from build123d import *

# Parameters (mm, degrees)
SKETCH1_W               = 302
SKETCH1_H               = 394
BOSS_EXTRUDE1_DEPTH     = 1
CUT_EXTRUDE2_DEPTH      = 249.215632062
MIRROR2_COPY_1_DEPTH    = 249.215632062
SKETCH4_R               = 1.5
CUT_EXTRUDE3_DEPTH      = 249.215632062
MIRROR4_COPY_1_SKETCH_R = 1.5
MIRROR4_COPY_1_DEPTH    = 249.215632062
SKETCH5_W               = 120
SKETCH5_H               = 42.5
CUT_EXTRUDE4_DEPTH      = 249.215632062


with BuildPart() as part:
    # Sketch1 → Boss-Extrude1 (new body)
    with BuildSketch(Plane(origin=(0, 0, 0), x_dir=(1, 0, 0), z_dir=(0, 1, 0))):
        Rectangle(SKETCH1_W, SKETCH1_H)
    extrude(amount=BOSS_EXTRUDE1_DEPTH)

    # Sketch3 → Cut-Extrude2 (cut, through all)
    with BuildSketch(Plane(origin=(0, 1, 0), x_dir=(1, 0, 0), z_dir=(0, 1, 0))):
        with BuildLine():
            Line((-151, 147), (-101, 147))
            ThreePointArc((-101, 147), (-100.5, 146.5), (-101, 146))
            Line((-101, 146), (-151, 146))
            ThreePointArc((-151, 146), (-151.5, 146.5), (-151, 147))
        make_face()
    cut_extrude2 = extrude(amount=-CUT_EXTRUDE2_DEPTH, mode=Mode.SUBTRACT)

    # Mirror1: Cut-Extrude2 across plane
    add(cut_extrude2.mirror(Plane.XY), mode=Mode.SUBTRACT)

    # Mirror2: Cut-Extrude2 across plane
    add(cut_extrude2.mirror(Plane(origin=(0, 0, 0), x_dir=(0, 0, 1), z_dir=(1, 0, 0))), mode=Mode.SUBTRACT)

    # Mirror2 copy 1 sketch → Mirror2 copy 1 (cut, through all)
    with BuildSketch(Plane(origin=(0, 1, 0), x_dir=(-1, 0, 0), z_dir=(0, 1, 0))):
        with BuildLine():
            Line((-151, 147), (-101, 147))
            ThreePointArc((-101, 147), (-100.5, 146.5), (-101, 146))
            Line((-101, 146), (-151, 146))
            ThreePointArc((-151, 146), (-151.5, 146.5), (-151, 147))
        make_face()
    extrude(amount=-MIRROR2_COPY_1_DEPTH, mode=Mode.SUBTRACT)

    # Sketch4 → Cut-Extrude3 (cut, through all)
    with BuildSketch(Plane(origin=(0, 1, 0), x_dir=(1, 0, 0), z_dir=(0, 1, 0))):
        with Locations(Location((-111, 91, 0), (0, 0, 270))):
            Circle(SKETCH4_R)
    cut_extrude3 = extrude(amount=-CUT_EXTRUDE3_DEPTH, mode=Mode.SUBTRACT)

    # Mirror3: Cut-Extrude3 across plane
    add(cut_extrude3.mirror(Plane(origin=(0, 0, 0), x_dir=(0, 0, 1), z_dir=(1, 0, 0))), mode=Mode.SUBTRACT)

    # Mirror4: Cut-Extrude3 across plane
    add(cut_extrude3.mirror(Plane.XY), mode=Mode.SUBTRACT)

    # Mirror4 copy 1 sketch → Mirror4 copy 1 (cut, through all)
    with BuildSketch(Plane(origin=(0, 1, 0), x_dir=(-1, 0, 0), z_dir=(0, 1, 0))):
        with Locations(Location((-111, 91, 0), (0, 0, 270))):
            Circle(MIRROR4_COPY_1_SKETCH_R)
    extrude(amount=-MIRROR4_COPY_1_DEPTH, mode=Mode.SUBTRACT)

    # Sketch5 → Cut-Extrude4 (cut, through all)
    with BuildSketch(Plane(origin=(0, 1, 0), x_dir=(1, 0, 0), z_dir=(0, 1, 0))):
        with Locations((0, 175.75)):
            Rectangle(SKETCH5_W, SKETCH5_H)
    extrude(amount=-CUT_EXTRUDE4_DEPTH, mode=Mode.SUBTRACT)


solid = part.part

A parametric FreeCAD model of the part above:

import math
import FreeCAD as App
import Part
import Sketcher

V = App.Vector
Q = App.Units.Quantity

doc = App.newDocument("Part")
params = doc.addObject("Spreadsheet::Sheet", "Params")
for row, (alias, value) in enumerate([
    ("sketch1_width", "302 mm"),
    ("sketch1_height", "394 mm"),
    ("pad1_length", "1 mm"),
    ("sketch2_radius", "0.5 mm"),
    ("sketch2_width", "50 mm"),
    ("sketch3_radius", "0.5 mm"),
    ("sketch3_width", "50 mm"),
    ("sketch4_diameter", "3 mm"),
    ("sketch5_diameter", "3 mm"),
    ("sketch6_width", "120 mm"),
    ("sketch6_height", "42.5 mm"),
], start=1):
    params.set(f"A{row}", alias)
    params.set(f"B{row}", "=" + value)
    params.setAlias(f"B{row}", alias)

body = doc.addObject("PartDesign::Body", "Body")

# Sketch on XZ plane
sketch1 = body.newObject("Sketcher::SketchObject", "Sketch")
sketch1.AttachmentSupport = (doc.getObject("XZ_Plane"), [""])
sketch1.MapMode = "FlatFace"
sketch1.addGeometry(Part.LineSegment(V(-151, -197, 0), V(-151, 197, 0)), False)
sketch1.addGeometry(Part.LineSegment(V(-151, 197, 0), V(151, 197, 0)), False)
sketch1.addGeometry(Part.LineSegment(V(151, 197, 0), V(151, -197, 0)), False)
sketch1.addGeometry(Part.LineSegment(V(151, -197, 0), V(-151, -197, 0)), False)
sketch1.addConstraint(Sketcher.Constraint("Coincident", 0, 2, 1, 1))
sketch1.addConstraint(Sketcher.Constraint("Coincident", 1, 2, 2, 1))
sketch1.addConstraint(Sketcher.Constraint("Coincident", 2, 2, 3, 1))
sketch1.addConstraint(Sketcher.Constraint("Coincident", 3, 2, 0, 1))
sketch1.addConstraint(Sketcher.Constraint("Vertical", 0))
sketch1.addConstraint(Sketcher.Constraint("Horizontal", 1))
sketch1.addConstraint(Sketcher.Constraint("Vertical", 2))
sketch1.addConstraint(Sketcher.Constraint("Horizontal", 3))
sketch1.addConstraint(Sketcher.Constraint("Symmetric", 0, 2, 2, 2, -1, 1))
sketch1.addConstraint(Sketcher.Constraint("DistanceX", 1, 1, 1, 2, Q("302 mm")))
sketch1.addConstraint(Sketcher.Constraint("DistanceY", 0, 1, 0, 2, Q("394 mm")))
sketch1.setExpression("Constraints[9]", "Params.sketch1_width")
sketch1.setExpression("Constraints[10]", "Params.sketch1_height")
pad1 = body.newObject("PartDesign::Pad", "Pad")
pad1.Profile = sketch1
pad1.setExpression("Length", "Params.pad1_length")
pad1.Reversed = True

# Sketch on XZ plane
sketch2 = body.newObject("Sketcher::SketchObject", "Sketch001")
sketch2.AttachmentSupport = (doc.getObject("XZ_Plane"), [""])
sketch2.MapMode = "FlatFace"
sketch2.AttachmentOffset = App.Placement(V(0, 0, -1), App.Rotation())
sketch2.addGeometry(Part.LineSegment(V(-101, -147, 0), V(-151, -147, 0)), False)
sketch2.addGeometry(Part.ArcOfCircle(Part.Circle(V(-151, -146.5, 0), V(0, 0, 1), 0.5), math.radians(90), math.radians(270)), False)
sketch2.addGeometry(Part.LineSegment(V(-151, -146, 0), V(-101, -146, 0)), False)
sketch2.addGeometry(Part.ArcOfCircle(Part.Circle(V(-101, -146.5, 0), V(0, 0, 1), 0.5), math.radians(-90), math.radians(90)), False)
sketch2.addConstraint(Sketcher.Constraint("Tangent", 0, 2, 1, 2))
sketch2.addConstraint(Sketcher.Constraint("Tangent", 1, 1, 2, 1))
sketch2.addConstraint(Sketcher.Constraint("Tangent", 2, 2, 3, 2))
sketch2.addConstraint(Sketcher.Constraint("Tangent", 3, 1, 0, 1))
sketch2.addConstraint(Sketcher.Constraint("Horizontal", 0))
sketch2.addConstraint(Sketcher.Constraint("Horizontal", 2))
sketch2.addConstraint(Sketcher.Constraint("Radius", 1, Q("0.5 mm")))
sketch2.addConstraint(Sketcher.Constraint("DistanceX", 0, 2, 0, 1, Q("50 mm")))
sketch2.addConstraint(Sketcher.Constraint("DistanceX", 1, 3, -1, 1, Q("151 mm")))
sketch2.addConstraint(Sketcher.Constraint("DistanceY", 0, 2, -1, 1, Q("147 mm")))
sketch2.setExpression("Constraints[6]", "Params.sketch2_radius")
sketch2.setExpression("Constraints[7]", "Params.sketch2_width")
pocket1 = body.newObject("PartDesign::Pocket", "Pocket")
pocket1.Profile = sketch2
pocket1.Type = "ThroughAll"
pocket1.Reversed = True
doc.recompute()

mirrored = body.newObject("PartDesign::Mirrored", "Mirrored")
mirrored.Originals = [pocket1]
mirrored.MirrorPlane = (doc.getObject("XY_Plane"), [""])
body.Tip = mirrored
doc.recompute()

mirrored2 = body.newObject("PartDesign::Mirrored", "Mirrored001")
mirrored2.Originals = [pocket1]
mirrored2.MirrorPlane = (doc.getObject("YZ_Plane"), [""])
body.Tip = mirrored2

# Sketch on XZ plane
sketch3 = body.newObject("Sketcher::SketchObject", "Sketch002")
sketch3.AttachmentSupport = (doc.getObject("XZ_Plane"), [""])
sketch3.MapMode = "FlatFace"
sketch3.AttachmentOffset = App.Placement(V(0, 0, -1), App.Rotation())
sketch3.addGeometry(Part.LineSegment(V(101, 147, 0), V(151, 147, 0)), False)
sketch3.addGeometry(Part.ArcOfCircle(Part.Circle(V(151, 146.5, 0), V(0, 0, 1), 0.5), math.radians(-90), math.radians(90)), False)
sketch3.addGeometry(Part.LineSegment(V(151, 146, 0), V(101, 146, 0)), False)
sketch3.addGeometry(Part.ArcOfCircle(Part.Circle(V(101, 146.5, 0), V(0, 0, 1), 0.5), math.radians(90), math.radians(270)), False)
sketch3.addConstraint(Sketcher.Constraint("Tangent", 0, 2, 1, 2))
sketch3.addConstraint(Sketcher.Constraint("Tangent", 1, 1, 2, 1))
sketch3.addConstraint(Sketcher.Constraint("Tangent", 2, 2, 3, 2))
sketch3.addConstraint(Sketcher.Constraint("Tangent", 3, 1, 0, 1))
sketch3.addConstraint(Sketcher.Constraint("Horizontal", 0))
sketch3.addConstraint(Sketcher.Constraint("Horizontal", 2))
sketch3.addConstraint(Sketcher.Constraint("Radius", 1, Q("0.5 mm")))
sketch3.addConstraint(Sketcher.Constraint("DistanceX", 0, 1, 0, 2, Q("50 mm")))
sketch3.addConstraint(Sketcher.Constraint("DistanceX", -1, 1, 1, 3, Q("151 mm")))
sketch3.addConstraint(Sketcher.Constraint("DistanceY", -1, 1, 0, 2, Q("147 mm")))
sketch3.setExpression("Constraints[6]", "Params.sketch3_radius")
sketch3.setExpression("Constraints[7]", "Params.sketch3_width")
pocket2 = body.newObject("PartDesign::Pocket", "Pocket001")
pocket2.Profile = sketch3
pocket2.Type = "ThroughAll"
pocket2.Reversed = True

# Sketch on XZ plane
sketch4 = body.newObject("Sketcher::SketchObject", "Sketch003")
sketch4.AttachmentSupport = (doc.getObject("XZ_Plane"), [""])
sketch4.MapMode = "FlatFace"
sketch4.AttachmentOffset = App.Placement(V(0, 0, -1), App.Rotation())
sketch4.addGeometry(Part.Circle(V(-111, -91, 0), V(0, 0, 1), 1.5), False)
sketch4.addConstraint(Sketcher.Constraint("Diameter", 0, Q("3 mm")))
sketch4.addConstraint(Sketcher.Constraint("DistanceX", 0, 3, -1, 1, Q("111 mm")))
sketch4.addConstraint(Sketcher.Constraint("DistanceY", 0, 3, -1, 1, Q("91 mm")))
sketch4.setExpression("Constraints[0]", "Params.sketch4_diameter")
pocket3 = body.newObject("PartDesign::Pocket", "Pocket002")
pocket3.Profile = sketch4
pocket3.Type = "ThroughAll"
pocket3.Reversed = True
doc.recompute()

mirrored3 = body.newObject("PartDesign::Mirrored", "Mirrored002")
mirrored3.Originals = [pocket3]
mirrored3.MirrorPlane = (doc.getObject("YZ_Plane"), [""])
body.Tip = mirrored3
doc.recompute()

mirrored4 = body.newObject("PartDesign::Mirrored", "Mirrored003")
mirrored4.Originals = [pocket3]
mirrored4.MirrorPlane = (doc.getObject("XY_Plane"), [""])
body.Tip = mirrored4

# Sketch on XZ plane
sketch5 = body.newObject("Sketcher::SketchObject", "Sketch004")
sketch5.AttachmentSupport = (doc.getObject("XZ_Plane"), [""])
sketch5.MapMode = "FlatFace"
sketch5.AttachmentOffset = App.Placement(V(0, 0, -1), App.Rotation())
sketch5.addGeometry(Part.Circle(V(111, 91, 0), V(0, 0, 1), 1.5), False)
sketch5.addConstraint(Sketcher.Constraint("Diameter", 0, Q("3 mm")))
sketch5.addConstraint(Sketcher.Constraint("DistanceX", -1, 1, 0, 3, Q("111 mm")))
sketch5.addConstraint(Sketcher.Constraint("DistanceY", -1, 1, 0, 3, Q("91 mm")))
sketch5.setExpression("Constraints[0]", "Params.sketch5_diameter")
pocket4 = body.newObject("PartDesign::Pocket", "Pocket003")
pocket4.Profile = sketch5
pocket4.Type = "ThroughAll"
pocket4.Reversed = True

# Sketch on XZ plane
sketch6 = body.newObject("Sketcher::SketchObject", "Sketch005")
sketch6.AttachmentSupport = (doc.getObject("XZ_Plane"), [""])
sketch6.MapMode = "FlatFace"
sketch6.AttachmentOffset = App.Placement(V(0, 0, -1), App.Rotation())
sketch6.addGeometry(Part.LineSegment(V(-60, -197, 0), V(-60, -154.5, 0)), False)
sketch6.addGeometry(Part.LineSegment(V(-60, -154.5, 0), V(60, -154.5, 0)), False)
sketch6.addGeometry(Part.LineSegment(V(60, -154.5, 0), V(60, -197, 0)), False)
sketch6.addGeometry(Part.LineSegment(V(60, -197, 0), V(-60, -197, 0)), False)
sketch6.addConstraint(Sketcher.Constraint("Coincident", 0, 2, 1, 1))
sketch6.addConstraint(Sketcher.Constraint("Coincident", 1, 2, 2, 1))
sketch6.addConstraint(Sketcher.Constraint("Coincident", 2, 2, 3, 1))
sketch6.addConstraint(Sketcher.Constraint("Coincident", 3, 2, 0, 1))
sketch6.addConstraint(Sketcher.Constraint("Vertical", 0))
sketch6.addConstraint(Sketcher.Constraint("Horizontal", 1))
sketch6.addConstraint(Sketcher.Constraint("Vertical", 2))
sketch6.addConstraint(Sketcher.Constraint("Horizontal", 3))
sketch6.addConstraint(Sketcher.Constraint("DistanceX", 1, 1, 1, 2, Q("120 mm")))
sketch6.addConstraint(Sketcher.Constraint("DistanceY", 0, 1, 0, 2, Q("42.5 mm")))
sketch6.addConstraint(Sketcher.Constraint("DistanceX", 0, 2, -1, 1, Q("60 mm")))
sketch6.addConstraint(Sketcher.Constraint("DistanceY", 2, 2, -1, 1, Q("197 mm")))
sketch6.setExpression("Constraints[8]", "Params.sketch6_width")
sketch6.setExpression("Constraints[9]", "Params.sketch6_height")
pocket5 = body.newObject("PartDesign::Pocket", "Pocket004")
pocket5.Profile = sketch6
pocket5.Type = "ThroughAll"
pocket5.Reversed = True

doc.recompute()
